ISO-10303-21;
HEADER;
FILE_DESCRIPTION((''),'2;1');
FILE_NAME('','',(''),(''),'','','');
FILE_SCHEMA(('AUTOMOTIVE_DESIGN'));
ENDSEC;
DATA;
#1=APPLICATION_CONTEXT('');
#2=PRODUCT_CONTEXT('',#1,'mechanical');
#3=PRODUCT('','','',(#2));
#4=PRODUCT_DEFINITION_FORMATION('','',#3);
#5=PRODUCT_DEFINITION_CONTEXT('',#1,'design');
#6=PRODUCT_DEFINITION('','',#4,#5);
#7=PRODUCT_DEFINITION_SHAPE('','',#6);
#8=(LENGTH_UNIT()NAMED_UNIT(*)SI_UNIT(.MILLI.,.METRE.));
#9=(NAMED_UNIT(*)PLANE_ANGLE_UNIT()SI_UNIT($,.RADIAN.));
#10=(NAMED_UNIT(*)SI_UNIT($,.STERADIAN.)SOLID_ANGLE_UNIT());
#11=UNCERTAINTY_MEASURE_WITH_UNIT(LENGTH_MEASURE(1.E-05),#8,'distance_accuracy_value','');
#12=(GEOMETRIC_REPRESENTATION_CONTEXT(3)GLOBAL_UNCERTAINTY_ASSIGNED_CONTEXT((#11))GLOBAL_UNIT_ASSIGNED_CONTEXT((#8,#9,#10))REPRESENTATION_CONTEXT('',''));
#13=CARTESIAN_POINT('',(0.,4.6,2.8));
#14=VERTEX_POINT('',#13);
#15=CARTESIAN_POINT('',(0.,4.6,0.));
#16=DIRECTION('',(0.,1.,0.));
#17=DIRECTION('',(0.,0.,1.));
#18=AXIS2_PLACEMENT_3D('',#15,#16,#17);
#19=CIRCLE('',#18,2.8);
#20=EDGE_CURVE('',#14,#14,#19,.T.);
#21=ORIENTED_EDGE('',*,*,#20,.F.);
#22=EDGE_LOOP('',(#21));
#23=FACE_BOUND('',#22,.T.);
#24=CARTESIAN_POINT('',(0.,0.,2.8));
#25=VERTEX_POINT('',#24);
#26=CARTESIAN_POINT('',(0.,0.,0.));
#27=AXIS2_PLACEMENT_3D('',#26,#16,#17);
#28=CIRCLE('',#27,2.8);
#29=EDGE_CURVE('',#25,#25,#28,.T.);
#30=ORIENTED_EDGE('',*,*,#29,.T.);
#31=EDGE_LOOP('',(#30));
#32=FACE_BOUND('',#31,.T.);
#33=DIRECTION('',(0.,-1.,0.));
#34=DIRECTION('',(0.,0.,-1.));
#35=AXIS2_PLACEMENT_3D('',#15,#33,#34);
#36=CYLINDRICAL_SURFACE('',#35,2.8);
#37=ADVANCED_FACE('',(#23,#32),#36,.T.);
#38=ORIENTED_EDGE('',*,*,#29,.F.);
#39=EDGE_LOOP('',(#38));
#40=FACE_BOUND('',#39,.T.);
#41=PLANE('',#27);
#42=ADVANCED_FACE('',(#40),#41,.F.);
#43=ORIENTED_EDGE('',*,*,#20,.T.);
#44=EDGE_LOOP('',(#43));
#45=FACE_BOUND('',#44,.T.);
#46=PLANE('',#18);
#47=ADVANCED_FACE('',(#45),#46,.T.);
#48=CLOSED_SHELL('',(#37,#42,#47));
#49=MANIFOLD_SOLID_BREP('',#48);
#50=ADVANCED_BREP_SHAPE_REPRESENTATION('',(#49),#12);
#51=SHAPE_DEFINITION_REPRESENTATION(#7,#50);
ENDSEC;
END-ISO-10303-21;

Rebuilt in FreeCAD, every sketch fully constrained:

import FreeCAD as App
import Part
import Sketcher

V = App.Vector

doc = App.newDocument("Part")
body = doc.addObject("PartDesign::Body", "Body")

sketch1 = body.newObject("Sketcher::SketchObject", "Sketch")
sketch1.AttachmentSupport = (doc.getObject("XZ_Plane"), [""])
sketch1.MapMode = "FlatFace"
sketch1.addGeometry(Part.Circle(V(0, 0, 0), V(0, 0, 1), 2.8), False)
sketch1.addConstraint([
    Sketcher.Constraint("Coincident", 0, 3, -1, 1),
    Sketcher.Constraint("Diameter", 0, 5.6),
])
pad1 = body.newObject("PartDesign::Pad", "Pad")
pad1.Profile = sketch1
pad1.Length = 4.6
pad1.Reversed = True

doc.recompute()
